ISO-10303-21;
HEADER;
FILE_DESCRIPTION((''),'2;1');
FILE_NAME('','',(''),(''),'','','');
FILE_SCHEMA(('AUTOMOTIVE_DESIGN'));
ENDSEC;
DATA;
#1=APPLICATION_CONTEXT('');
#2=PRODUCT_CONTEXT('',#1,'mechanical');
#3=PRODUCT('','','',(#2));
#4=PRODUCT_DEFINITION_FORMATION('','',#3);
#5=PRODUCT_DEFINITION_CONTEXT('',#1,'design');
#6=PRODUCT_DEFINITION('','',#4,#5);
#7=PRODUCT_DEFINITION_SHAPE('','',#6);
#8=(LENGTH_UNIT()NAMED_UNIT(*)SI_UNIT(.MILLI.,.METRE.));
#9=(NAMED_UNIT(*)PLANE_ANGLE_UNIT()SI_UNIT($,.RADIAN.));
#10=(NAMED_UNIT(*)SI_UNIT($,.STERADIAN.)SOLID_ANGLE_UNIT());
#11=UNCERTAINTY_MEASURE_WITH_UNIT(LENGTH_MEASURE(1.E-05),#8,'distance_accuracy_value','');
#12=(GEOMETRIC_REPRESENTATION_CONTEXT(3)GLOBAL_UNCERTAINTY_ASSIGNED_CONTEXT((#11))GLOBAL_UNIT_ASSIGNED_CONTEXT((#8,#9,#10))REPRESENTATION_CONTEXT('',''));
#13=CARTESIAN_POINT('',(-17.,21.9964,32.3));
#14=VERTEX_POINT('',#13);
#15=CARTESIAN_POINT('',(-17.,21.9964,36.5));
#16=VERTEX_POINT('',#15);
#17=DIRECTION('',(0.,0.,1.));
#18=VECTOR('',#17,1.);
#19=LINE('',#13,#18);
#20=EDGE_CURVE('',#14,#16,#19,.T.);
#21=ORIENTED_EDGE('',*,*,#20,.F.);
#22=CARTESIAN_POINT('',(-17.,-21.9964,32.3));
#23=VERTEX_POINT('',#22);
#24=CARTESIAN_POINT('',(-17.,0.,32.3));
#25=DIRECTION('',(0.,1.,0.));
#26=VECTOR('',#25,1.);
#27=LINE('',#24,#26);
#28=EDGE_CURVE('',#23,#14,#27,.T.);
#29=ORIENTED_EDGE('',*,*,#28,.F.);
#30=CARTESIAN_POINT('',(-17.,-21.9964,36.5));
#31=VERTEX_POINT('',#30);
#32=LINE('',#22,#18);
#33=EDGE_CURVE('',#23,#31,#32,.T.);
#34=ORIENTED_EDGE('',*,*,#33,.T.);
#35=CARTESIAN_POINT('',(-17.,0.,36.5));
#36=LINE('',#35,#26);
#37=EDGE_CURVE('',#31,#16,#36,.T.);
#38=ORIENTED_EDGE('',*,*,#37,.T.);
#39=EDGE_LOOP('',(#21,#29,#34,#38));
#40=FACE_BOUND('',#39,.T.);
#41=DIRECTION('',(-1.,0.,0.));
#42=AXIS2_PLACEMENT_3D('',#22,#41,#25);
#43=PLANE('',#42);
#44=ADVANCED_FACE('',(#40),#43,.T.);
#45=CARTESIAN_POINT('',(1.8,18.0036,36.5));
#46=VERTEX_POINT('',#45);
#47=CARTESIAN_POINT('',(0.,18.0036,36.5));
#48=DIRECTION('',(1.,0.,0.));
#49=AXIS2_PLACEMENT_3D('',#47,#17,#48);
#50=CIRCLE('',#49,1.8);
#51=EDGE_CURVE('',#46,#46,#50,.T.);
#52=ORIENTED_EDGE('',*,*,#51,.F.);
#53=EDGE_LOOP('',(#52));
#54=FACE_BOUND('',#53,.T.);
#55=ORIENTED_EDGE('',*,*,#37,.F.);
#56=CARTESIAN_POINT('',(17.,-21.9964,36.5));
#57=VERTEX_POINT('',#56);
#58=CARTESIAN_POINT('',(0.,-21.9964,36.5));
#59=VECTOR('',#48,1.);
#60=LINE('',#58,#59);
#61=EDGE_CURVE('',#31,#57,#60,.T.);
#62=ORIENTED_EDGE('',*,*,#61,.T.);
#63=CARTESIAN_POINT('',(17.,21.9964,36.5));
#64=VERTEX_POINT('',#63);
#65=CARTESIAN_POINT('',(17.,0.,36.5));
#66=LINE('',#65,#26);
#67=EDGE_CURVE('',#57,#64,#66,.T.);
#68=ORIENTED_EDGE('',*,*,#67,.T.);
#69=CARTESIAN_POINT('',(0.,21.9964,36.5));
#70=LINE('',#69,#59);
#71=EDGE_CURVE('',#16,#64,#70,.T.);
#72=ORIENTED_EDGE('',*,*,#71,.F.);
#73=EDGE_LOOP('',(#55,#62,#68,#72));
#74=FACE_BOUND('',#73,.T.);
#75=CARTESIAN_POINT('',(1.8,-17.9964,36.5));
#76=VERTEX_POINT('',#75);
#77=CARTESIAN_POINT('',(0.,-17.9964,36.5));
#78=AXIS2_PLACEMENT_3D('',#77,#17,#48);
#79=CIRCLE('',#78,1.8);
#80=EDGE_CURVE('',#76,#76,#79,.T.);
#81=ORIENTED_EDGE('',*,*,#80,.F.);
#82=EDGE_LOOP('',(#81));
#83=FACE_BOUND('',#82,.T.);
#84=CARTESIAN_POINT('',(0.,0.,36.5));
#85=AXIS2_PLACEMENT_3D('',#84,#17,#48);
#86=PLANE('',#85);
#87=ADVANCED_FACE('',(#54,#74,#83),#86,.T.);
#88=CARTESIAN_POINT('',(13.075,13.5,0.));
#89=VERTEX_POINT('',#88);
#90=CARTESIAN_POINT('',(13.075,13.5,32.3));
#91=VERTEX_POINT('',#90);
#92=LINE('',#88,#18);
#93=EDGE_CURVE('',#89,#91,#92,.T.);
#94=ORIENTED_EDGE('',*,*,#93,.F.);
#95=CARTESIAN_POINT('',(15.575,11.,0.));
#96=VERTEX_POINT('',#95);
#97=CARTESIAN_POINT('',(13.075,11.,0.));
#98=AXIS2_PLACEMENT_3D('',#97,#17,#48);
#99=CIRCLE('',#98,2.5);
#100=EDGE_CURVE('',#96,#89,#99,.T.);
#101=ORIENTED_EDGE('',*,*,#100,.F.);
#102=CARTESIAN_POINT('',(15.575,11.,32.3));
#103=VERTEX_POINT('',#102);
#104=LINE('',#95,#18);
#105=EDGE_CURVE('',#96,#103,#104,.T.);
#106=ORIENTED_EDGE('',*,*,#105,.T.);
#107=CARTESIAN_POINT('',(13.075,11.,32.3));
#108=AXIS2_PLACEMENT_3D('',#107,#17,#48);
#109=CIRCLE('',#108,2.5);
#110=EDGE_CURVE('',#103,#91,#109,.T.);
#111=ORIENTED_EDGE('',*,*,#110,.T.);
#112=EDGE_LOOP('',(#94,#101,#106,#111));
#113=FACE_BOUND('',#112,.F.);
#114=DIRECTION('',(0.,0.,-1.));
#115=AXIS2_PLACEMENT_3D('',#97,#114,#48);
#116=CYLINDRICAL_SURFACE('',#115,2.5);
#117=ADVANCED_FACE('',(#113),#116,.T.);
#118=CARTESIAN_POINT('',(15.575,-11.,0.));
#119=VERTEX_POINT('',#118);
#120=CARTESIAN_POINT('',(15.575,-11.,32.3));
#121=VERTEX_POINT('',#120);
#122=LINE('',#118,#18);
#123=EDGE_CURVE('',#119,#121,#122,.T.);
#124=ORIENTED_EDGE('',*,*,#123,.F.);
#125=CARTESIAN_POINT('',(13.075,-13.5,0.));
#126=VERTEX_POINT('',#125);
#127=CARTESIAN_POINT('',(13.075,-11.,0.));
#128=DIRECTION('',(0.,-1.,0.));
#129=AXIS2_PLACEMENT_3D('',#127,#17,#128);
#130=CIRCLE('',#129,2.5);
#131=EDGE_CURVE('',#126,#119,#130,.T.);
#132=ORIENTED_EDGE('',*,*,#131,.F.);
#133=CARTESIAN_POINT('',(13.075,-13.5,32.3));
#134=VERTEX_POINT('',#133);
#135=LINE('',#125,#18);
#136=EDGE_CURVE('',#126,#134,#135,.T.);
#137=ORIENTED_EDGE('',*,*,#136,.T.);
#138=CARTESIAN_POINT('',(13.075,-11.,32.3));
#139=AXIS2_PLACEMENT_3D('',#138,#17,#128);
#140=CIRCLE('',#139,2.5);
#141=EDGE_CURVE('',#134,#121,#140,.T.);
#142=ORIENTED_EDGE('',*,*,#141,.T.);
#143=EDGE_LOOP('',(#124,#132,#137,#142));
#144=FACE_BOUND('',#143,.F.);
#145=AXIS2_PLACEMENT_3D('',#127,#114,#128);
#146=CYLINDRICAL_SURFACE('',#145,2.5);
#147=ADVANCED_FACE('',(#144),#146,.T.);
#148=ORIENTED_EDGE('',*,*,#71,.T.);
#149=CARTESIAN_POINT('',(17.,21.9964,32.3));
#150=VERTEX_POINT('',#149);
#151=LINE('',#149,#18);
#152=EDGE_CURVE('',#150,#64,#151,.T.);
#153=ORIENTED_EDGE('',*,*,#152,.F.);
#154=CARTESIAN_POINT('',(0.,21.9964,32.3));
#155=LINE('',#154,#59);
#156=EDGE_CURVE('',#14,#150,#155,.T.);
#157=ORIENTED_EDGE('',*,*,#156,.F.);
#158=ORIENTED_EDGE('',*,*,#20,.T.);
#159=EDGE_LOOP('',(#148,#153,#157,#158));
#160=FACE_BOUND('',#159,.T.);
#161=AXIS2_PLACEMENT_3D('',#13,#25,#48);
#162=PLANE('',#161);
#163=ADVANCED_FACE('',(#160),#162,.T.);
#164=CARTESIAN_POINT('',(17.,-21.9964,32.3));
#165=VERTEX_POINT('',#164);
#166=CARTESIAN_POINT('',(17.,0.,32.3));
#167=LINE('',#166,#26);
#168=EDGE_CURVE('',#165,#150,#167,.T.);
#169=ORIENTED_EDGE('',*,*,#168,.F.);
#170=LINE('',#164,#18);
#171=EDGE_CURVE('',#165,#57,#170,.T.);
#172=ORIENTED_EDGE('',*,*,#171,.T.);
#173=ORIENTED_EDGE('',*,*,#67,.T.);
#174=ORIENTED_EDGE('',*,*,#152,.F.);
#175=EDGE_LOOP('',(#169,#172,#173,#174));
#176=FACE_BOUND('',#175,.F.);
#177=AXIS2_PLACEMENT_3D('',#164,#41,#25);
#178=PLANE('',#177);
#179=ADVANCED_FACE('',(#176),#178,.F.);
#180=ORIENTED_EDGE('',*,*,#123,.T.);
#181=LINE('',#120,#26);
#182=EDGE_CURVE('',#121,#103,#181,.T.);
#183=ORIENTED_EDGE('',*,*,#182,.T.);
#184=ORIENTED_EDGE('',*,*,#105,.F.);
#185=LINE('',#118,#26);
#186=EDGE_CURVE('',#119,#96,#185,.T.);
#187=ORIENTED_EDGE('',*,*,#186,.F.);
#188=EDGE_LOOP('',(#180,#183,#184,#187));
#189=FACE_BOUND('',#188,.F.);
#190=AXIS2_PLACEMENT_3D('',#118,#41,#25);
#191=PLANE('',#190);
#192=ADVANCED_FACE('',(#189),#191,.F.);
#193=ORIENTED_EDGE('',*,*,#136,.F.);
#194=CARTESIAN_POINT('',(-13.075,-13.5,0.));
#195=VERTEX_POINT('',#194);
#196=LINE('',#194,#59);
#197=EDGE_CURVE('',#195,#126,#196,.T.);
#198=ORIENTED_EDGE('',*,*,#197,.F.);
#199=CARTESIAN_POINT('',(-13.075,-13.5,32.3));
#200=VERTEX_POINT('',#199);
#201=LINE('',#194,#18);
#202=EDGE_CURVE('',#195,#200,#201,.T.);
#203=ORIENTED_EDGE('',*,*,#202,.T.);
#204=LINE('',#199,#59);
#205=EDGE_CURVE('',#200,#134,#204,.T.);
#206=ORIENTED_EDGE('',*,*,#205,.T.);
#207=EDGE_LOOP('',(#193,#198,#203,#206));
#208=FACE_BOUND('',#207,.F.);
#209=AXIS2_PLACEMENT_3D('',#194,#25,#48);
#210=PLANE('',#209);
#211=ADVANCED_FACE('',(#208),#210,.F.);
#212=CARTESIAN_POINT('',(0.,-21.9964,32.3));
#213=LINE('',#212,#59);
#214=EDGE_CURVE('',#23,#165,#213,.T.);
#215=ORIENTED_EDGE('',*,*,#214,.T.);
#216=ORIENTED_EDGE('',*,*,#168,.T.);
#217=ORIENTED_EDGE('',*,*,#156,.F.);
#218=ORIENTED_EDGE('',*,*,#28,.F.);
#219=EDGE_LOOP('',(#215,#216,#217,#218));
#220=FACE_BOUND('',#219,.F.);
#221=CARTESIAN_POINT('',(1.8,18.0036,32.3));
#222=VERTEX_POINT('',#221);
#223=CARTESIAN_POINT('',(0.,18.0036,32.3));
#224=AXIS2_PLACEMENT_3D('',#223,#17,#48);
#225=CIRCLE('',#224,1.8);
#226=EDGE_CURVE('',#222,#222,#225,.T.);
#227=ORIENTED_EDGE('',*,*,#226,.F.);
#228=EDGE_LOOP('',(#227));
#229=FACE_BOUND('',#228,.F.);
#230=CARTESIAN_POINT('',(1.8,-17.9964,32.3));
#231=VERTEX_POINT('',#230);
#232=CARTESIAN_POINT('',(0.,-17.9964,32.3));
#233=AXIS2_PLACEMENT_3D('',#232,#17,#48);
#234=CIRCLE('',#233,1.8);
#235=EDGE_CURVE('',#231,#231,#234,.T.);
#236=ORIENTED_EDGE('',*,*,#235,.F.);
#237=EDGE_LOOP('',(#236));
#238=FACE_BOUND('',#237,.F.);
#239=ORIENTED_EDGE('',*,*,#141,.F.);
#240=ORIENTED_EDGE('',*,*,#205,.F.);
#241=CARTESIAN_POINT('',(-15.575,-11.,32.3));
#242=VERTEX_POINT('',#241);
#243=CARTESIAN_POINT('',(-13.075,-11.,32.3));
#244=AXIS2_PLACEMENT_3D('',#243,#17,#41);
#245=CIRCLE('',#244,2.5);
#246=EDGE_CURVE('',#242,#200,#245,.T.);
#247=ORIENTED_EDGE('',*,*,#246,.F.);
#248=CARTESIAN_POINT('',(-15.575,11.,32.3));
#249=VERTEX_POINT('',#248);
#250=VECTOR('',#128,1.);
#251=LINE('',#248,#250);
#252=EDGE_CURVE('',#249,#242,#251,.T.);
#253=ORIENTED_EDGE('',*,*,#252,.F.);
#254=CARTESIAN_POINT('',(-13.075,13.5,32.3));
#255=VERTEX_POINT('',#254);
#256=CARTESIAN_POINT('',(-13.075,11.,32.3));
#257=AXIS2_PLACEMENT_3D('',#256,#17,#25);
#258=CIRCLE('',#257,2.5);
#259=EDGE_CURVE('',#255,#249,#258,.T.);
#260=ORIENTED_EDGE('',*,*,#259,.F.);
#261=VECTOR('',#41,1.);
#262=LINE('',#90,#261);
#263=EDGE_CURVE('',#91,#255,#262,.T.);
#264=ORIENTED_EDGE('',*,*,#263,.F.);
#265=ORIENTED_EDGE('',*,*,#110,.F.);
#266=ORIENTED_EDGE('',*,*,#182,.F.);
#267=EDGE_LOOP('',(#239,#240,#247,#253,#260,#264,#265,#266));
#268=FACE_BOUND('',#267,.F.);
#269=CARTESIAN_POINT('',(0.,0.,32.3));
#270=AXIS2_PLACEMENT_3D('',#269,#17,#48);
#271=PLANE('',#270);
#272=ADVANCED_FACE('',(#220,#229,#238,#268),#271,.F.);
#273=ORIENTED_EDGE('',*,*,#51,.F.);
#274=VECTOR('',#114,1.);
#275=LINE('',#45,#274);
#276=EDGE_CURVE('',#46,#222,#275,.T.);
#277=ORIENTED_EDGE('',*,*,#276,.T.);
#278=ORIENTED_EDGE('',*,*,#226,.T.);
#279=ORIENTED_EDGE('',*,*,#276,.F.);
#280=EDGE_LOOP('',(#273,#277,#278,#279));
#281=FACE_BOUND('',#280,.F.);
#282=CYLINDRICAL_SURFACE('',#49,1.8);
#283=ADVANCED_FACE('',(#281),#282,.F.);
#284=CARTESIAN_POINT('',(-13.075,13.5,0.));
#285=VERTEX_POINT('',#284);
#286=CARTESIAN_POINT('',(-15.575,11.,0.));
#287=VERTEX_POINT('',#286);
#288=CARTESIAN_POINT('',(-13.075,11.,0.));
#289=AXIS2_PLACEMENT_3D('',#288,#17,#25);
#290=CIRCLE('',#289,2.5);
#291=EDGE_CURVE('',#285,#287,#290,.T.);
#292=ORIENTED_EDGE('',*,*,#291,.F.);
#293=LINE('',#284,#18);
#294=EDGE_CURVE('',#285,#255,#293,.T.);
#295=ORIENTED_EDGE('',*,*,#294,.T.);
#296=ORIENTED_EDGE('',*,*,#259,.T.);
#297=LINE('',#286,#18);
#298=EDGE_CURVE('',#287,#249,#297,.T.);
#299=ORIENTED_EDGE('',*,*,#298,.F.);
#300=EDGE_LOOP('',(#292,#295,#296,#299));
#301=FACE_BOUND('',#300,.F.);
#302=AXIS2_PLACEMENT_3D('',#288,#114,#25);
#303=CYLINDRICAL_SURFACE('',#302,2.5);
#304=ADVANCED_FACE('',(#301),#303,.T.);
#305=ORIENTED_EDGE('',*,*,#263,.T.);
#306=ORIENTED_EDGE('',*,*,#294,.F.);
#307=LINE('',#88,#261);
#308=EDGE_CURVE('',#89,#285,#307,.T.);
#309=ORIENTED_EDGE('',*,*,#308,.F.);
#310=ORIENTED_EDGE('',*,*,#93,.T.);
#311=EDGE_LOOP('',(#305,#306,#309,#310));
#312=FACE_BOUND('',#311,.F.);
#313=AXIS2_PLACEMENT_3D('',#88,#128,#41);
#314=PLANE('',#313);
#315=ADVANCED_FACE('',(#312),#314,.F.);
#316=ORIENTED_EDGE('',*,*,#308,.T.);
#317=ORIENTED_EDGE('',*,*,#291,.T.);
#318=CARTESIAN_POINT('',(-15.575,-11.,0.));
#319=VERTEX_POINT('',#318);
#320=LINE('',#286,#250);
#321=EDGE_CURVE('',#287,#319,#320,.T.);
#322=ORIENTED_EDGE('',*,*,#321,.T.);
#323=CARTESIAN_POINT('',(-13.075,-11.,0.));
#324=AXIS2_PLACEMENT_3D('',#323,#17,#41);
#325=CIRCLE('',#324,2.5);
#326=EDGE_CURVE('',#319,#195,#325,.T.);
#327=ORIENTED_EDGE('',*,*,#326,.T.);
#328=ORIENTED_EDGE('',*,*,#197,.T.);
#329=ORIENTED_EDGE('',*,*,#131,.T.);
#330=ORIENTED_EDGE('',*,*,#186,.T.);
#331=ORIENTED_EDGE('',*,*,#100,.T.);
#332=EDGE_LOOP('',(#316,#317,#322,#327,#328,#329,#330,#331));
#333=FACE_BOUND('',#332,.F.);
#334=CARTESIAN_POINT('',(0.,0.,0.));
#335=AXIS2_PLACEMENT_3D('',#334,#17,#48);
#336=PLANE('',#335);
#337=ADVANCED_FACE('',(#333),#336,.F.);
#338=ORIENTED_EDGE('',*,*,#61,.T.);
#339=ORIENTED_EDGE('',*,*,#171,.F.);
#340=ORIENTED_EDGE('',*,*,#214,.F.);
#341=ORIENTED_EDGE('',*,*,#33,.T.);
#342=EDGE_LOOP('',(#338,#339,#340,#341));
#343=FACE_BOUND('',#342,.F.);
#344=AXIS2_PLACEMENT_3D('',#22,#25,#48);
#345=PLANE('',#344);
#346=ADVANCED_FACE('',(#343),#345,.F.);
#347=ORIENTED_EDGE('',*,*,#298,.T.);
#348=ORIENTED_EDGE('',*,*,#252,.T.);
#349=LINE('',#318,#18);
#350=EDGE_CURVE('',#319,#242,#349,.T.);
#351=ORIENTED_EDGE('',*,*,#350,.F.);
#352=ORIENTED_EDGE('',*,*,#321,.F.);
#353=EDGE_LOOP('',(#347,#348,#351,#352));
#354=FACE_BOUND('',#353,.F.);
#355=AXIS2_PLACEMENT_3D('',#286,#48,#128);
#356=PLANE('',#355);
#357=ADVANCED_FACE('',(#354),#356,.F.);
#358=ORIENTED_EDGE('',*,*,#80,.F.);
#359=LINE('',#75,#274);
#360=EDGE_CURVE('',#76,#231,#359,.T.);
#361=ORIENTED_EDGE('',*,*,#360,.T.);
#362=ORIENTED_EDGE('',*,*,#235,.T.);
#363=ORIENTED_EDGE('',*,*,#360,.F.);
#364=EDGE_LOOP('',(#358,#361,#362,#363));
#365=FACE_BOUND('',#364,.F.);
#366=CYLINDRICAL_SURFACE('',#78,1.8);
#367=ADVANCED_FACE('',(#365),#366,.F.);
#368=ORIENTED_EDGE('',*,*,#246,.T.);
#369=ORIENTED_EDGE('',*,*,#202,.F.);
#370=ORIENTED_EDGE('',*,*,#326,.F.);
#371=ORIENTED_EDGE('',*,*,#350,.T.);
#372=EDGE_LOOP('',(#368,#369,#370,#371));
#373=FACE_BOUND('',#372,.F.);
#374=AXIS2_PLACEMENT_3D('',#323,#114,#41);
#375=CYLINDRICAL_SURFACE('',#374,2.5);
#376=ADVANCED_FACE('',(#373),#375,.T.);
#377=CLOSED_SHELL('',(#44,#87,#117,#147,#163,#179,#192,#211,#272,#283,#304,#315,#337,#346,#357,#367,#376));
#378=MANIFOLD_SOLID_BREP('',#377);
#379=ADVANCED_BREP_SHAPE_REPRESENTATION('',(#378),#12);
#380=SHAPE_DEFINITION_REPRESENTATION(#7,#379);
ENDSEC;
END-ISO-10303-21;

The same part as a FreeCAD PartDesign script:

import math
import FreeCAD as App
import Part
import Sketcher
from FreeCAD import Vector
Q = App.Units.Quantity

doc = App.newDocument("Part")
body = doc.addObject("PartDesign::Body", "Body")

sketch1 = body.newObject("Sketcher::SketchObject", "Sketch")
sketch1.AttachmentSupport = (doc.getObject("XY_Plane"), [""])
sketch1.MapMode = "FlatFace"
sketch1.addGeometry([
    Part.LineSegment(Vector(-13.075, -13.5, 0), Vector(13.075, -13.5, 0)),
    Part.ArcOfCircle(Part.Circle(Vector(13.075, -11, 0), Vector(0, 0, 1), 2.5), math.radians(-90), math.radians(0)),
    Part.LineSegment(Vector(15.575, -11, 0), Vector(15.575, 11, 0)),
    Part.ArcOfCircle(Part.Circle(Vector(13.075, 11, 0), Vector(0, 0, 1), 2.5), math.radians(0), math.radians(90)),
    Part.LineSegment(Vector(13.075, 13.5, 0), Vector(-13.075, 13.5, 0)),
    Part.ArcOfCircle(Part.Circle(Vector(-13.075, 11, 0), Vector(0, 0, 1), 2.5), math.radians(90), math.radians(180)),
    Part.LineSegment(Vector(-15.575, 11, 0), Vector(-15.575, -11, 0)),
    Part.ArcOfCircle(Part.Circle(Vector(-13.075, -11, 0), Vector(0, 0, 1), 2.5), math.radians(180), math.radians(270)),
], False)
sketch1.addConstraint([
    Sketcher.Constraint("Tangent", 0, 2, 1, 1),
    Sketcher.Constraint("Tangent", 1, 2, 2, 1),
    Sketcher.Constraint("Tangent", 2, 2, 3, 1),
    Sketcher.Constraint("Tangent", 3, 2, 4, 1),
    Sketcher.Constraint("Tangent", 4, 2, 5, 1),
    Sketcher.Constraint("Tangent", 5, 2, 6, 1),
    Sketcher.Constraint("Tangent", 6, 2, 7, 1),
    Sketcher.Constraint("Tangent", 7, 2, 0, 1),
    Sketcher.Constraint("Horizontal", 0),
    Sketcher.Constraint("Vertical", 2),
    Sketcher.Constraint("Horizontal", 4),
    Sketcher.Constraint("Vertical", 6),
    Sketcher.Constraint("Equal", 1, 3),
    Sketcher.Constraint("Equal", 3, 5),
    Sketcher.Constraint("Equal", 5, 7),
    Sketcher.Constraint("Symmetric", 1, 3, 5, 3, -1, 1),
    Sketcher.Constraint("Radius", 1, Q("2.5 mm")),
    Sketcher.Constraint("DistanceY", 2, 1, 2, 2, Q("22 mm")),
    Sketcher.Constraint("DistanceX", 0, 1, 0, 2, Q("26.15 mm")),
])
pad1 = body.newObject("PartDesign::Pad", "Pad")
pad1.Profile = sketch1
pad1.Length = 32.3

sketch2 = body.newObject("Sketcher::SketchObject", "Sketch001")
sketch2.AttachmentSupport = (doc.getObject("XY_Plane"), [""])
sketch2.MapMode = "FlatFace"
sketch2.AttachmentOffset = App.Placement(Vector(0, 0, 32.3), App.Rotation())
sketch2.addGeometry([
    Part.LineSegment(Vector(-17, 21.9964, 0), Vector(-17, -21.9964, 0)),
    Part.LineSegment(Vector(-17, -21.9964, 0), Vector(17, -21.9964, 0)),
    Part.LineSegment(Vector(17, -21.9964, 0), Vector(17, 21.9964, 0)),
    Part.LineSegment(Vector(17, 21.9964, 0), Vector(-17, 21.9964, 0)),
], False)
sketch2.addConstraint([
    Sketcher.Constraint("Coincident", 0, 2, 1, 1),
    Sketcher.Constraint("Coincident", 1, 2, 2, 1),
    Sketcher.Constraint("Coincident", 2, 2, 3, 1),
    Sketcher.Constraint("Coincident", 3, 2, 0, 1),
    Sketcher.Constraint("Vertical", 0),
    Sketcher.Constraint("Horizontal", 1),
    Sketcher.Constraint("Vertical", 2),
    Sketcher.Constraint("Horizontal", 3),
    Sketcher.Constraint("Symmetric", 0, 2, 2, 2, -1, 1),
    Sketcher.Constraint("DistanceX", 1, 1, 1, 2, Q("34 mm")),
    Sketcher.Constraint("DistanceY", 0, 2, 0, 1, Q("43.9928 mm")),
])
pad2 = body.newObject("PartDesign::Pad", "Pad001")
pad2.Profile = sketch2
pad2.Length = 4.2

sketch3 = body.newObject("Sketcher::SketchObject", "Sketch002")
sketch3.AttachmentSupport = (doc.getObject("XY_Plane"), [""])
sketch3.MapMode = "FlatFace"
sketch3.AttachmentOffset = App.Placement(Vector(0, 0, 36.5), App.Rotation())
sketch3.addGeometry([
    Part.Circle(Vector(0, 18.0036, 0), Vector(0, 0, 1), 1.8),
    Part.Circle(Vector(0, -17.9964, 0), Vector(0, 0, 1), 1.8),
], False)
sketch3.addConstraint([
    Sketcher.Constraint("Equal", 0, 1),
    Sketcher.Constraint("PointOnObject", 0, 3, -2),
    Sketcher.Constraint("PointOnObject", 1, 3, -2),
    Sketcher.Constraint("Diameter", 0, Q("3.6 mm")),
    Sketcher.Constraint("DistanceY", 1, 3, 0, 3, Q("36 mm")),
    Sketcher.Constraint("DistanceY", -1, 1, 0, 3, Q("18.0036 mm")),
])
pocket1 = body.newObject("PartDesign::Pocket", "Pocket")
pocket1.Profile = sketch3
pocket1.Length = 25.4

doc.recompute()
